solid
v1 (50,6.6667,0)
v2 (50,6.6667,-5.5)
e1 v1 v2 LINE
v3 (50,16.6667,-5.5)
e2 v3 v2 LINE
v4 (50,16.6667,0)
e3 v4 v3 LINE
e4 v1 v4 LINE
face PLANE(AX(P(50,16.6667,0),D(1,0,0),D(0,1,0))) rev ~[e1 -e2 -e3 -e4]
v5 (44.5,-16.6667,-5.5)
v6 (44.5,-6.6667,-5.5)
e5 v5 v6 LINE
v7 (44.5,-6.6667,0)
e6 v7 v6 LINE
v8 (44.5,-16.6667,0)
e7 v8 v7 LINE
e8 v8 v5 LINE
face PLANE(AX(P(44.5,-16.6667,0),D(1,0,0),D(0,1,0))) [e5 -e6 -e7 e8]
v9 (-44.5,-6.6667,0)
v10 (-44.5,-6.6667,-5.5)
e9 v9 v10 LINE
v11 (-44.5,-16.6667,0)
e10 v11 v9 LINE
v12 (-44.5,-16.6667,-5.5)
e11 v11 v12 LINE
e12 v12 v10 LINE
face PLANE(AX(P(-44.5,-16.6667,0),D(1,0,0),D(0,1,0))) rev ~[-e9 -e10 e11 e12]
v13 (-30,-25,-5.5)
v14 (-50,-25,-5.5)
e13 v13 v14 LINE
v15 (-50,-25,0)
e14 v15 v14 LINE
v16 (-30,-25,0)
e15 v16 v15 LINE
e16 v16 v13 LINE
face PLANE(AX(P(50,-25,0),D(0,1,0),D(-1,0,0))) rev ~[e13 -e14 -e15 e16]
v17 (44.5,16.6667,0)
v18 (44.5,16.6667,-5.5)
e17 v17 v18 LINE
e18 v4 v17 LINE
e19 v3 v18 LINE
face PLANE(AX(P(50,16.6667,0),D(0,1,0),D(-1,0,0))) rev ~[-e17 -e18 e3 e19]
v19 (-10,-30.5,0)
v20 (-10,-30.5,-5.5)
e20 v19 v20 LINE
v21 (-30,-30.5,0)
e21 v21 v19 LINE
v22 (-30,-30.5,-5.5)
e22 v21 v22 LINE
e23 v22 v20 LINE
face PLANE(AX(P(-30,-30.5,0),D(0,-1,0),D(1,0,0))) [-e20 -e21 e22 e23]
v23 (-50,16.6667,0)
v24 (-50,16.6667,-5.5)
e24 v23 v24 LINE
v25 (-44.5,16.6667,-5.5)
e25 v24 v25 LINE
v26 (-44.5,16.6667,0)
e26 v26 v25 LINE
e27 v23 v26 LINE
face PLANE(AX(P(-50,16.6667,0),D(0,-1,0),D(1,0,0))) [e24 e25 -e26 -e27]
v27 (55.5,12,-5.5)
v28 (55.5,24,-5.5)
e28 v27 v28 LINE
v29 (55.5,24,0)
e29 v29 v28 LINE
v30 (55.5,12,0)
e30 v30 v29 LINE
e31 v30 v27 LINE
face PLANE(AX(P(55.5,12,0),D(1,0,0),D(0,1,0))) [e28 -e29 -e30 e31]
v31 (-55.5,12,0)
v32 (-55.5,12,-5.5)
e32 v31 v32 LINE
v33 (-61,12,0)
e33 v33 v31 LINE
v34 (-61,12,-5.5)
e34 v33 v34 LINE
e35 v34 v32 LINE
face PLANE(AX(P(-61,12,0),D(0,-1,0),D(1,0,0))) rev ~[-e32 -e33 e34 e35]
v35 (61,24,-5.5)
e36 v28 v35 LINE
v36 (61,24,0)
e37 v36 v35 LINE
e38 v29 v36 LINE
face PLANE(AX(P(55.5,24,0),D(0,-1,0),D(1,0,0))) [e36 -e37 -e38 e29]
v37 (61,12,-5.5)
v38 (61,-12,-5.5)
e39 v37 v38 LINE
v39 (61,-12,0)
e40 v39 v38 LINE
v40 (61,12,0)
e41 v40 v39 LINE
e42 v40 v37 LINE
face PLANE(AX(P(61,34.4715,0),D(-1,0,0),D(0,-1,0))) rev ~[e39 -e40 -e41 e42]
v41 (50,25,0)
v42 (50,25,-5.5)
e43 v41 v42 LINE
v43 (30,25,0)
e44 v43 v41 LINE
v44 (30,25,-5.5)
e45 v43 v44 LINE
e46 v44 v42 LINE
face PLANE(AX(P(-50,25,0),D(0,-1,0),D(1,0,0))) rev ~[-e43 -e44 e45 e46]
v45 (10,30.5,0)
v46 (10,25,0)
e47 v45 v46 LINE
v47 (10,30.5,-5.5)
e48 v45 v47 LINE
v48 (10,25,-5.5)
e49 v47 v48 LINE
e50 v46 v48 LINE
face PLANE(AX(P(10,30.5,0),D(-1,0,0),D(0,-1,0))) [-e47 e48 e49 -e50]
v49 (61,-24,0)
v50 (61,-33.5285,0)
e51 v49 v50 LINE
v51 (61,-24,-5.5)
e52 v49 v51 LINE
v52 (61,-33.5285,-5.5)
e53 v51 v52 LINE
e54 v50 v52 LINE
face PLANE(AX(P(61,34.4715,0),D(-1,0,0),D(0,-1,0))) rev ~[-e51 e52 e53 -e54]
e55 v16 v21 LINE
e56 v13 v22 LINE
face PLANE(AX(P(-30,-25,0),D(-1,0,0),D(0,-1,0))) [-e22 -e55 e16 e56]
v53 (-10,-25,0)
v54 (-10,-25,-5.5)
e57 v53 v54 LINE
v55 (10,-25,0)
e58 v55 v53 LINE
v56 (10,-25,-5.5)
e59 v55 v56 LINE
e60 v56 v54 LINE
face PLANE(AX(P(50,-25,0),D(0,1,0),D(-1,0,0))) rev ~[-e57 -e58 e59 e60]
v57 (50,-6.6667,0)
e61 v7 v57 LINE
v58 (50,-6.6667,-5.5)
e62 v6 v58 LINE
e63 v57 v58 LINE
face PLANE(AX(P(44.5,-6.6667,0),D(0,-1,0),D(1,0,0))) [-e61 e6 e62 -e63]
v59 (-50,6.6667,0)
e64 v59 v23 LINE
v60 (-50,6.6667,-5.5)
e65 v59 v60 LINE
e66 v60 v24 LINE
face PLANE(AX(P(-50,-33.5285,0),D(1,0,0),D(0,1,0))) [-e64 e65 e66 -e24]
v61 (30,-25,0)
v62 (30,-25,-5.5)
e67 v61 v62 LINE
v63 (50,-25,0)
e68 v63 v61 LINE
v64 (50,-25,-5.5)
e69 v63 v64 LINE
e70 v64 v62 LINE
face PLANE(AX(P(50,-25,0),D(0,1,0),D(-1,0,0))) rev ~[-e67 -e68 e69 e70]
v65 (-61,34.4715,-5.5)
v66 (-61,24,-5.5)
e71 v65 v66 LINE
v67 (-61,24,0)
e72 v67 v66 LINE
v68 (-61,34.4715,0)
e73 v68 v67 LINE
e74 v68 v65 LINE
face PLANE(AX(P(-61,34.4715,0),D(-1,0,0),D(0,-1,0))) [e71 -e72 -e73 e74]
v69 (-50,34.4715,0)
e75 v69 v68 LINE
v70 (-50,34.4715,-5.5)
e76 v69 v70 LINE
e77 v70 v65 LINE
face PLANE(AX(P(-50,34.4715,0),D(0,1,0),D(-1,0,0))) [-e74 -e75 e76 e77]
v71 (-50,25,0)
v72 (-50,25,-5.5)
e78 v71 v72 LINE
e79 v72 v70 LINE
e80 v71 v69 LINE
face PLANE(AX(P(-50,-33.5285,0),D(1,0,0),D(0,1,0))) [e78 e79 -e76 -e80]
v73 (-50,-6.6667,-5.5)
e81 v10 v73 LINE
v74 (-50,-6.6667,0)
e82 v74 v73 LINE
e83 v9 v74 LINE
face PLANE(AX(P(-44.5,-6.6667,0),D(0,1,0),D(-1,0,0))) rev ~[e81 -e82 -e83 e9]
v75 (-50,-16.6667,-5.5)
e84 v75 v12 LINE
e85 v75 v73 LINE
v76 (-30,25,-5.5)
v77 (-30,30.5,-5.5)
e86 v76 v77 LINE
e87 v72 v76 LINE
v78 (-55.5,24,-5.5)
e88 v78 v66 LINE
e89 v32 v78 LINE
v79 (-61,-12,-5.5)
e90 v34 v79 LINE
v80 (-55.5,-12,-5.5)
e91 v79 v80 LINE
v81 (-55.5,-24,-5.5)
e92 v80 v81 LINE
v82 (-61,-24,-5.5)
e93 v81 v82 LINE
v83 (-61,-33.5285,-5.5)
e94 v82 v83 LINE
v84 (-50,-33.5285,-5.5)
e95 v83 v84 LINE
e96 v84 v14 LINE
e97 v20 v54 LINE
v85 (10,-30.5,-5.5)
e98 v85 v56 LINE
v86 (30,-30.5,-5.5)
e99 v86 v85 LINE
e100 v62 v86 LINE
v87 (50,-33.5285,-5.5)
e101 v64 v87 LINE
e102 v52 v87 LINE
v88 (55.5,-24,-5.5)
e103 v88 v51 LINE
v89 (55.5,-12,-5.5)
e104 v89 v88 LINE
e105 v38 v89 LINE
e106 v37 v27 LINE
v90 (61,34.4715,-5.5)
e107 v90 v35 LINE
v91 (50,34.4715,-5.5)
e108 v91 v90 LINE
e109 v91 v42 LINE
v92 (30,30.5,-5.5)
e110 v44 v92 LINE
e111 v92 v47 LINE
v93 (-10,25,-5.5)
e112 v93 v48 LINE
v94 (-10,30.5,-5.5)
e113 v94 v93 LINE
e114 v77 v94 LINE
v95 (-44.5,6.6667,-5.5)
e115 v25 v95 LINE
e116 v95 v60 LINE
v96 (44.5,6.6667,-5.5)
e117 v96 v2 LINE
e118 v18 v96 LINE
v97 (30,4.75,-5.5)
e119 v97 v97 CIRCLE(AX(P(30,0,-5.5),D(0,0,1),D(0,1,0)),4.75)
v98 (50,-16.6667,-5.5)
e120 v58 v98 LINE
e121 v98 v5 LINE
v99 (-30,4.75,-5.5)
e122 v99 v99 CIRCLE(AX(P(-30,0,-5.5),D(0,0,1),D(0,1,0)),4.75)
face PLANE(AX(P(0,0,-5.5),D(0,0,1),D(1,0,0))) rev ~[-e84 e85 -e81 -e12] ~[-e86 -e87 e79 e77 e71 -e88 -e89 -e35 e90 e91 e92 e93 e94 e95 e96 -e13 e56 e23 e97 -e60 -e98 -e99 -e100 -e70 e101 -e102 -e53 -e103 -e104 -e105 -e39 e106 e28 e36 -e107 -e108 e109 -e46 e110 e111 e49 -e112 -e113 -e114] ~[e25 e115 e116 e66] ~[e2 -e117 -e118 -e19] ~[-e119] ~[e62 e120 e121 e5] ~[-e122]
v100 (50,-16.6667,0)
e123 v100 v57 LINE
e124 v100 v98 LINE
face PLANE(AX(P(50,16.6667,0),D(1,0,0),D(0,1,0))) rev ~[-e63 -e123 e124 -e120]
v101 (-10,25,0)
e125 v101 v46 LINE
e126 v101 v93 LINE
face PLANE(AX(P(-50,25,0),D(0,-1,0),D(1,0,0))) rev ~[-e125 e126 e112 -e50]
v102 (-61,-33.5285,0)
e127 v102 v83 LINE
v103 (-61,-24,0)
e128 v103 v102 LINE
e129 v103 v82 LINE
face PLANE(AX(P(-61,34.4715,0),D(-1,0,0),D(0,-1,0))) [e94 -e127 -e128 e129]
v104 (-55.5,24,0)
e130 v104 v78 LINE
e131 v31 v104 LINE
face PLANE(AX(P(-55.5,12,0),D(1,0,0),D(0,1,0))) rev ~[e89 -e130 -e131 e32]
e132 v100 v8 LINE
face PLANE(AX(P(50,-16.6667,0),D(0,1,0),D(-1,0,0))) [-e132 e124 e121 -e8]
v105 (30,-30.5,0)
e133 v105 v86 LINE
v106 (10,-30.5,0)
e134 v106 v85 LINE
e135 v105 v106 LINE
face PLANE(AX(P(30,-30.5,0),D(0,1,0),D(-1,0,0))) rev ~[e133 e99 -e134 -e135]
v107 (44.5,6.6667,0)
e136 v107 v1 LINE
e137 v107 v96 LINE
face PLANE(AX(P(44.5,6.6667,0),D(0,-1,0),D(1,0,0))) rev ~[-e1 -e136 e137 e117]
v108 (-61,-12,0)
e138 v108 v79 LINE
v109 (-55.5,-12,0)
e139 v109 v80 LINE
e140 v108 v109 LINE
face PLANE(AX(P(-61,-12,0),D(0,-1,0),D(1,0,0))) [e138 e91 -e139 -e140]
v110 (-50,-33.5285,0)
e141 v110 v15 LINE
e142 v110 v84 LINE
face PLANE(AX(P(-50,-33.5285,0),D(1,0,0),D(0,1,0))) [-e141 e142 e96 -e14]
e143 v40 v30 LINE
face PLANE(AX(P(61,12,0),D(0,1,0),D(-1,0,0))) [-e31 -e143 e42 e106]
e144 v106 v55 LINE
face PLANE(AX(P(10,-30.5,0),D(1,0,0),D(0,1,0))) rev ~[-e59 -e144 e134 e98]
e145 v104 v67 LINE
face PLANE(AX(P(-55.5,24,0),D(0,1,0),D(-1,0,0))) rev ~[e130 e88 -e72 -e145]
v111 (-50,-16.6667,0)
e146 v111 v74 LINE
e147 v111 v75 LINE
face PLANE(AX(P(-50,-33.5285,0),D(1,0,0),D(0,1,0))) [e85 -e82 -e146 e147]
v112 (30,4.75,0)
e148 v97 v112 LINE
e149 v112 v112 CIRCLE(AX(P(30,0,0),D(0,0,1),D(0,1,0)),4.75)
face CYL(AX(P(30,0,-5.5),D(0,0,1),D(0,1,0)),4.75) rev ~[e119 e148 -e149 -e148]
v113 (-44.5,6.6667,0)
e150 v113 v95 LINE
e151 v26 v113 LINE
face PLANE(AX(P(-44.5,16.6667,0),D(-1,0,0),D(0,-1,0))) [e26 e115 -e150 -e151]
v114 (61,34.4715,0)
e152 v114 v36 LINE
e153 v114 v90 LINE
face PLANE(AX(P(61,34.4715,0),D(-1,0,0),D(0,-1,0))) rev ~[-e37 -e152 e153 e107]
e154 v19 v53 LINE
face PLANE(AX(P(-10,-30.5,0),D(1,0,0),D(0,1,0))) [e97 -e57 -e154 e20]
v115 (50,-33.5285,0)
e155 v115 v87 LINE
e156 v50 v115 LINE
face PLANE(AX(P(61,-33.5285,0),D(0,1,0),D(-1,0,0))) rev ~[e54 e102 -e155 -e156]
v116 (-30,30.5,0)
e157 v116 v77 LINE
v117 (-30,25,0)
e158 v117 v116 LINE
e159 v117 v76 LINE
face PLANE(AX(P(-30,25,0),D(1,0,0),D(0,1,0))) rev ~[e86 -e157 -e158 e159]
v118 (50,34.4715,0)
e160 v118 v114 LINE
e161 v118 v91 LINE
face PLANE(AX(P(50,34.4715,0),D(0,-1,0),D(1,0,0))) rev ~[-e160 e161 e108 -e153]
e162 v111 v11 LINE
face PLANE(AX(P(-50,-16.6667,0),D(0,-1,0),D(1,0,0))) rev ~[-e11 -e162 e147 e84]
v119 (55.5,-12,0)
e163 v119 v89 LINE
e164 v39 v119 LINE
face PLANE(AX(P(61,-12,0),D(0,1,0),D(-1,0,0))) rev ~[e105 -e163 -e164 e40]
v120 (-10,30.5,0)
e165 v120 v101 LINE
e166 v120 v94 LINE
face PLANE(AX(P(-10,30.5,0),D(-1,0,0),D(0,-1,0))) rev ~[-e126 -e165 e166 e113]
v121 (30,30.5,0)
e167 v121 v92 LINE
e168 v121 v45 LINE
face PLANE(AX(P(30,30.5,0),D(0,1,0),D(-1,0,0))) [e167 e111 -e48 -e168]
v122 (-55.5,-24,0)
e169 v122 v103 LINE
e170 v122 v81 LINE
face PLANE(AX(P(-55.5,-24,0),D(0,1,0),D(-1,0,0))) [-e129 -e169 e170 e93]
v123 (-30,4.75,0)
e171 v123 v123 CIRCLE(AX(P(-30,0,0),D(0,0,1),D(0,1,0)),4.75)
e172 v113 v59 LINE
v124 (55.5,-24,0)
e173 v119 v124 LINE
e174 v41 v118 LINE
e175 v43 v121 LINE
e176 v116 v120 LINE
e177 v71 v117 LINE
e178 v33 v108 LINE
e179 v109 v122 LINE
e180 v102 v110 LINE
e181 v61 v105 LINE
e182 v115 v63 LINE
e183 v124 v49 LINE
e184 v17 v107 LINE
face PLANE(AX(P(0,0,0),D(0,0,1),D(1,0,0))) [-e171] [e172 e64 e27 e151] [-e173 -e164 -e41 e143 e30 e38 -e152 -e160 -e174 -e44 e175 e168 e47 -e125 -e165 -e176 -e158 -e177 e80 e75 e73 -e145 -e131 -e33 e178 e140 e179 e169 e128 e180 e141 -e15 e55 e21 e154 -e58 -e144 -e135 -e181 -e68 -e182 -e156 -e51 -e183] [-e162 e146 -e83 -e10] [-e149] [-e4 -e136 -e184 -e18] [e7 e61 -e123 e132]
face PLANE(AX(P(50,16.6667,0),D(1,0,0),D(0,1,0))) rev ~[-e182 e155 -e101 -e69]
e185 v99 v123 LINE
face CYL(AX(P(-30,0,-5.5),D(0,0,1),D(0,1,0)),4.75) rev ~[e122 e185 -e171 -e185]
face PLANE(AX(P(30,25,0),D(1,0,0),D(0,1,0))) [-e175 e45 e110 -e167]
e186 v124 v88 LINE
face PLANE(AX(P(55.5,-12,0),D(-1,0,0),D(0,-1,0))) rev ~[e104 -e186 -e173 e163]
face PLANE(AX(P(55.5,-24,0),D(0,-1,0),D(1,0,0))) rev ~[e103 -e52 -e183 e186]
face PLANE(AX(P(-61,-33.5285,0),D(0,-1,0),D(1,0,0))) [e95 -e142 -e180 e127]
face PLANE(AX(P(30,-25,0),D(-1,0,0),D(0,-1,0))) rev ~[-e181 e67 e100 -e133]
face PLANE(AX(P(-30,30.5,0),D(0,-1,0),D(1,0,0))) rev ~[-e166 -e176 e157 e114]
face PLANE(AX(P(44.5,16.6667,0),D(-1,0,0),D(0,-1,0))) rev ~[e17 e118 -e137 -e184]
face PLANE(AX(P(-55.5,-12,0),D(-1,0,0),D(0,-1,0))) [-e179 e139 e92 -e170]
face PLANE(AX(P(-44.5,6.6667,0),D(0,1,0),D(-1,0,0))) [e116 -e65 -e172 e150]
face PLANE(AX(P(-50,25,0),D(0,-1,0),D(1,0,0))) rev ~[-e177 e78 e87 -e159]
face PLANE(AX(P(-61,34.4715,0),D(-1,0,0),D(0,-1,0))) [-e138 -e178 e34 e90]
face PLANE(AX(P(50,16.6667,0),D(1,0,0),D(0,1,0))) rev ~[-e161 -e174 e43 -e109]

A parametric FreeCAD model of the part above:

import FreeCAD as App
import Part
import Sketcher
from FreeCAD import Vector
Q = App.Units.Quantity


def add_polygon(sketch, points):
    """Adds a closed chain of lines whose ends are joined by coincident constraints."""
    first, n = sketch.GeometryCount, len(points)
    for a, b in zip(points, points[1:] + points[:1]):
        sketch.addGeometry(Part.LineSegment(App.Vector(*a, 0), App.Vector(*b, 0)), False)
    for i in range(n):
        sketch.addConstraint(Sketcher.Constraint("Coincident", first + i, 2, first + (i + 1) % n, 1))

doc = App.newDocument("Part")
body = doc.addObject("PartDesign::Body", "Body")

sketch1 = doc.addObject("Sketcher::SketchObject", "Sketch")
body.addObject(sketch1)
sketch1.AttachmentSupport = (doc.XY_Plane, [""])
sketch1.MapMode = "FlatFace"
add_polygon(sketch1, [(-50, -25), (50, -25), (50, 25), (-50, 25)])
sketch1.addConstraint([
    Sketcher.Constraint("Horizontal", 0),
    Sketcher.Constraint("Vertical", 1),
    Sketcher.Constraint("Horizontal", 2),
    Sketcher.Constraint("Vertical", 3),
    Sketcher.Constraint("Symmetric", 0, 2, 2, 2, -1, 1),
    Sketcher.Constraint("DistanceX", 0, 1, 0, 2, Q("100 mm")),
    Sketcher.Constraint("DistanceY", 1, 1, 1, 2, Q("50 mm")),
])
pad1 = doc.addObject("PartDesign::Pad", "Pad")
body.addObject(pad1)
pad1.Profile = sketch1
pad1.Length = 5.5
pad1.Reversed = True

sketch2 = doc.addObject("Sketcher::SketchObject", "Sketch001")
body.addObject(sketch2)
sketch2.AttachmentSupport = (doc.XY_Plane, [""])
sketch2.MapMode = "FlatFace"
sketch2.AttachmentOffset = App.Placement(Vector(0, 0, -5.5), App.Rotation())
sketch2.addGeometry([
    Part.Circle(Vector(30, 0, 0), Vector(0, 0, 1), 4.75),
    Part.Circle(Vector(-30, 0, 0), Vector(0, 0, 1), 4.75),
], False)
sketch2.addConstraint([
    Sketcher.Constraint("Equal", 0, 1),
    Sketcher.Constraint("Symmetric", 0, 3, 1, 3, -1, 1),
    Sketcher.Constraint("PointOnObject", 0, 3, -1),
    Sketcher.Constraint("Diameter", 0, Q("9.5 mm")),
    Sketcher.Constraint("DistanceX", -1, 1, 0, 3, Q("30 mm")),
])
doc.recompute()
hole = doc.addObject("PartDesign::Hole", "Hole")
body.addObject(hole)
hole.Profile = sketch2
hole.ThreadType = "None"
hole.Diameter = 9.5
hole.DepthType = "ThroughAll"
hole.Reversed = True

sketch3 = doc.addObject("Sketcher::SketchObject", "Sketch002")
body.addObject(sketch3)
sketch3.AttachmentSupport = (doc.XY_Plane, [""])
sketch3.MapMode = "FlatFace"
add_polygon(sketch3, [(-30, 30.5), (-30, 25), (-10, 25), (-10, 30.5)])
add_polygon(sketch3, [(10, 30.5), (10, 25), (30, 25), (30, 30.5)])
add_polygon(sketch3, [(-10, -25), (-30, -25), (-30, -30.5), (-10, -30.5)])
add_polygon(sketch3, [(30, -30.5), (30, -25), (10, -25), (10, -30.5)])
sketch3.addConstraint([
    Sketcher.Constraint("Vertical", 0),
    Sketcher.Constraint("Horizontal", 1),
    Sketcher.Constraint("Vertical", 2),
    Sketcher.Constraint("Horizontal", 3),
    Sketcher.Constraint("Vertical", 4),
    Sketcher.Constraint("Horizontal", 5),
    Sketcher.Constraint("Vertical", 6),
    Sketcher.Constraint("Horizontal", 7),
    Sketcher.Constraint("Horizontal", 8),
    Sketcher.Constraint("Vertical", 9),
    Sketcher.Constraint("Horizontal", 10),
    Sketcher.Constraint("Vertical", 11),
    Sketcher.Constraint("Vertical", 12),
    Sketcher.Constraint("Horizontal", 13),
    Sketcher.Constraint("Vertical", 14),
    Sketcher.Constraint("Horizontal", 15),
    Sketcher.Constraint("Symmetric", 5, 2, 8, 2, -1, 1),
    Sketcher.Constraint("Symmetric", 7, 2, 10, 2, -1, 1),
    Sketcher.Constraint("Symmetric", 0, 2, 12, 2, -1, 1),
    Sketcher.Constraint("Symmetric", 2, 2, 14, 2, -1, 1),
    Sketcher.Constraint("Symmetric", 1, 2, 4, 2, -2),
    Sketcher.Constraint("Symmetric", 3, 2, 6, 2, -2),
    Sketcher.Constraint("DistanceX", 1, 1, 1, 2, Q("20 mm")),
    Sketcher.Constraint("DistanceY", 0, 2, 0, 1, Q("5.5 mm")),
    Sketcher.Constraint("DistanceX", 1, 2, 4, 2, Q("20 mm")),
    Sketcher.Constraint("DistanceY", -1, 1, 0, 2, Q("25 mm")),
])
pad2 = doc.addObject("PartDesign::Pad", "Pad001")
body.addObject(pad2)
pad2.Profile = sketch3
pad2.Length = 5.5
pad2.Reversed = True

sketch4 = doc.addObject("Sketcher::SketchObject", "Sketch003")
body.addObject(sketch4)
sketch4.AttachmentSupport = (doc.XY_Plane, [""])
sketch4.MapMode = "FlatFace"
add_polygon(sketch4, [(-50, 16.6667), (-50, 6.6667), (-44.5, 6.6667), (-44.5, 16.6667)])
add_polygon(sketch4, [(-50, -6.6667), (-50, -16.6667), (-44.5, -16.6667), (-44.5, -6.6667)])
add_polygon(sketch4, [(50, 6.6667), (50, 16.6667), (44.5, 16.6667), (44.5, 6.6667)])
add_polygon(sketch4, [(44.5, -6.6667), (44.5, -16.6667), (50, -16.6667), (50, -6.6667)])
sketch4.addConstraint([
    Sketcher.Constraint("Vertical", 0),
    Sketcher.Constraint("Horizontal", 1),
    Sketcher.Constraint("Vertical", 2),
    Sketcher.Constraint("Horizontal", 3),
    Sketcher.Constraint("Vertical", 4),
    Sketcher.Constraint("Horizontal", 5),
    Sketcher.Constraint("Vertical", 6),
    Sketcher.Constraint("Horizontal", 7),
    Sketcher.Constraint("Vertical", 8),
    Sketcher.Constraint("Horizontal", 9),
    Sketcher.Constraint("Vertical", 10),
    Sketcher.Constraint("Horizontal", 11),
    Sketcher.Constraint("Vertical", 12),
    Sketcher.Constraint("Horizontal", 13),
    Sketcher.Constraint("Vertical", 14),
    Sketcher.Constraint("Horizontal", 15),
    Sketcher.Constraint("Symmetric", 4, 2, 8, 2, -1, 1),
    Sketcher.Constraint("Symmetric", 6, 2, 10, 2, -1, 1),
    Sketcher.Constraint("Symmetric", 2, 2, 12, 2, -1, 1),
    Sketcher.Constraint("Symmetric", 0, 2, 14, 2, -1, 1),
    Sketcher.Constraint("Symmetric", 3, 2, 8, 2, -2),
    Sketcher.Constraint("Symmetric", 1, 2, 10, 2, -2),
    Sketcher.Constraint("DistanceY", 0, 2, 0, 1, Q("10 mm")),
    Sketcher.Constraint("DistanceX", 1, 1, 1, 2, Q("5.5 mm")),
    Sketcher.Constraint("DistanceX", 0, 2, -1, 1, Q("50 mm")),
    Sketcher.Constraint("DistanceY", -1, 1, 0, 2, Q("6.6667 mm")),
])
pocket1 = doc.addObject("PartDesign::Pocket", "Pocket")
body.addObject(pocket1)
pocket1.Profile = sketch4
pocket1.Type = "ThroughAll"

sketch5 = doc.addObject("Sketcher::SketchObject", "Sketch004")
body.addObject(sketch5)
sketch5.AttachmentSupport = (doc.XY_Plane, [""])
sketch5.MapMode = "FlatFace"
add_polygon(sketch5, [(-50, -33.5285), (-50, 34.4715), (-61, 34.4715), (-61, -33.5285)])
add_polygon(sketch5, [(50, 34.4715), (50, -33.5285), (61, -33.5285), (61, 34.4715)])
sketch5.addConstraint([
    Sketcher.Constraint("Vertical", 0),
    Sketcher.Constraint("Horizontal", 1),
    Sketcher.Constraint("Vertical", 2),
    Sketcher.Constraint("Horizontal", 3),
    Sketcher.Constraint("Vertical", 4),
    Sketcher.Constraint("Horizontal", 5),
    Sketcher.Constraint("Vertical", 6),
    Sketcher.Constraint("Horizontal", 7),
    Sketcher.Constraint("Symmetric", 3, 2, 4, 2, -2),
    Sketcher.Constraint("Symmetric", 1, 2, 6, 2, -2),
    Sketcher.Constraint("DistanceX", 1, 2, 1, 1, Q("11 mm")),
    Sketcher.Constraint("DistanceY", 0, 1, 0, 2, Q("68 mm")),
    Sketcher.Constraint("DistanceX", 0, 2, -1, 1, Q("50 mm")),
    Sketcher.Constraint("DistanceY", -1, 1, 0, 2, Q("34.4715 mm")),
])
pad3 = doc.addObject("PartDesign::Pad", "Pad002")
body.addObject(pad3)
pad3.Profile = sketch5
pad3.Length = 5.5
pad3.Reversed = True

sketch6 = doc.addObject("Sketcher::SketchObject", "Sketch005")
body.addObject(sketch6)
sketch6.AttachmentSupport = (doc.XY_Plane, [""])
sketch6.MapMode = "FlatFace"
add_polygon(sketch6, [(-55.5, 24), (-61, 24), (-61, 12), (-55.5, 12)])
add_polygon(sketch6, [(-55.5, -12), (-61, -12), (-61, -24), (-55.5, -24)])
add_polygon(sketch6, [(55.5, 12), (61, 12), (61, 24), (55.5, 24)])
add_polygon(sketch6, [(61, -12), (55.5, -12), (55.5, -24), (61, -24)])
sketch6.addConstraint([
    Sketcher.Constraint("Horizontal", 0),
    Sketcher.Constraint("Vertical", 1),
    Sketcher.Constraint("Horizontal", 2),
    Sketcher.Constraint("Vertical", 3),
    Sketcher.Constraint("Horizontal", 4),
    Sketcher.Constraint("Vertical", 5),
    Sketcher.Constraint("Horizontal", 6),
    Sketcher.Constraint("Vertical", 7),
    Sketcher.Constraint("Horizontal", 8),
    Sketcher.Constraint("Vertical", 9),
    Sketcher.Constraint("Horizontal", 10),
    Sketcher.Constraint("Vertical", 11),
    Sketcher.Constraint("Horizontal", 12),
    Sketcher.Constraint("Vertical", 13),
    Sketcher.Constraint("Horizontal", 14),
    Sketcher.Constraint("Vertical", 15),
    Sketcher.Constraint("Symmetric", 4, 2, 8, 2, -1, 1),
    Sketcher.Constraint("Symmetric", 6, 2, 10, 2, -1, 1),
    Sketcher.Constraint("Symmetric", 2, 2, 12, 2, -1, 1),
    Sketcher.Constraint("Symmetric", 0, 2, 14, 2, -1, 1),
    Sketcher.Constraint("Symmetric", 1, 2, 8, 2, -2),
    Sketcher.Constraint("Symmetric", 3, 2, 10, 2, -2),
    Sketcher.Constraint("DistanceY", 1, 2, 1, 1, Q("12 mm")),
    Sketcher.Constraint("DistanceX", 0, 2, 0, 1, Q("5.5 mm")),
    Sketcher.Constraint("DistanceY", -1, 1, 1, 2, Q("12 mm")),
    Sketcher.Constraint("DistanceX", 0, 2, -1, 1, Q("61 mm")),
])
pocket2 = doc.addObject("PartDesign::Pocket", "Pocket001")
body.addObject(pocket2)
pocket2.Profile = sketch6
pocket2.Type = "ThroughAll"

doc.recompute()
